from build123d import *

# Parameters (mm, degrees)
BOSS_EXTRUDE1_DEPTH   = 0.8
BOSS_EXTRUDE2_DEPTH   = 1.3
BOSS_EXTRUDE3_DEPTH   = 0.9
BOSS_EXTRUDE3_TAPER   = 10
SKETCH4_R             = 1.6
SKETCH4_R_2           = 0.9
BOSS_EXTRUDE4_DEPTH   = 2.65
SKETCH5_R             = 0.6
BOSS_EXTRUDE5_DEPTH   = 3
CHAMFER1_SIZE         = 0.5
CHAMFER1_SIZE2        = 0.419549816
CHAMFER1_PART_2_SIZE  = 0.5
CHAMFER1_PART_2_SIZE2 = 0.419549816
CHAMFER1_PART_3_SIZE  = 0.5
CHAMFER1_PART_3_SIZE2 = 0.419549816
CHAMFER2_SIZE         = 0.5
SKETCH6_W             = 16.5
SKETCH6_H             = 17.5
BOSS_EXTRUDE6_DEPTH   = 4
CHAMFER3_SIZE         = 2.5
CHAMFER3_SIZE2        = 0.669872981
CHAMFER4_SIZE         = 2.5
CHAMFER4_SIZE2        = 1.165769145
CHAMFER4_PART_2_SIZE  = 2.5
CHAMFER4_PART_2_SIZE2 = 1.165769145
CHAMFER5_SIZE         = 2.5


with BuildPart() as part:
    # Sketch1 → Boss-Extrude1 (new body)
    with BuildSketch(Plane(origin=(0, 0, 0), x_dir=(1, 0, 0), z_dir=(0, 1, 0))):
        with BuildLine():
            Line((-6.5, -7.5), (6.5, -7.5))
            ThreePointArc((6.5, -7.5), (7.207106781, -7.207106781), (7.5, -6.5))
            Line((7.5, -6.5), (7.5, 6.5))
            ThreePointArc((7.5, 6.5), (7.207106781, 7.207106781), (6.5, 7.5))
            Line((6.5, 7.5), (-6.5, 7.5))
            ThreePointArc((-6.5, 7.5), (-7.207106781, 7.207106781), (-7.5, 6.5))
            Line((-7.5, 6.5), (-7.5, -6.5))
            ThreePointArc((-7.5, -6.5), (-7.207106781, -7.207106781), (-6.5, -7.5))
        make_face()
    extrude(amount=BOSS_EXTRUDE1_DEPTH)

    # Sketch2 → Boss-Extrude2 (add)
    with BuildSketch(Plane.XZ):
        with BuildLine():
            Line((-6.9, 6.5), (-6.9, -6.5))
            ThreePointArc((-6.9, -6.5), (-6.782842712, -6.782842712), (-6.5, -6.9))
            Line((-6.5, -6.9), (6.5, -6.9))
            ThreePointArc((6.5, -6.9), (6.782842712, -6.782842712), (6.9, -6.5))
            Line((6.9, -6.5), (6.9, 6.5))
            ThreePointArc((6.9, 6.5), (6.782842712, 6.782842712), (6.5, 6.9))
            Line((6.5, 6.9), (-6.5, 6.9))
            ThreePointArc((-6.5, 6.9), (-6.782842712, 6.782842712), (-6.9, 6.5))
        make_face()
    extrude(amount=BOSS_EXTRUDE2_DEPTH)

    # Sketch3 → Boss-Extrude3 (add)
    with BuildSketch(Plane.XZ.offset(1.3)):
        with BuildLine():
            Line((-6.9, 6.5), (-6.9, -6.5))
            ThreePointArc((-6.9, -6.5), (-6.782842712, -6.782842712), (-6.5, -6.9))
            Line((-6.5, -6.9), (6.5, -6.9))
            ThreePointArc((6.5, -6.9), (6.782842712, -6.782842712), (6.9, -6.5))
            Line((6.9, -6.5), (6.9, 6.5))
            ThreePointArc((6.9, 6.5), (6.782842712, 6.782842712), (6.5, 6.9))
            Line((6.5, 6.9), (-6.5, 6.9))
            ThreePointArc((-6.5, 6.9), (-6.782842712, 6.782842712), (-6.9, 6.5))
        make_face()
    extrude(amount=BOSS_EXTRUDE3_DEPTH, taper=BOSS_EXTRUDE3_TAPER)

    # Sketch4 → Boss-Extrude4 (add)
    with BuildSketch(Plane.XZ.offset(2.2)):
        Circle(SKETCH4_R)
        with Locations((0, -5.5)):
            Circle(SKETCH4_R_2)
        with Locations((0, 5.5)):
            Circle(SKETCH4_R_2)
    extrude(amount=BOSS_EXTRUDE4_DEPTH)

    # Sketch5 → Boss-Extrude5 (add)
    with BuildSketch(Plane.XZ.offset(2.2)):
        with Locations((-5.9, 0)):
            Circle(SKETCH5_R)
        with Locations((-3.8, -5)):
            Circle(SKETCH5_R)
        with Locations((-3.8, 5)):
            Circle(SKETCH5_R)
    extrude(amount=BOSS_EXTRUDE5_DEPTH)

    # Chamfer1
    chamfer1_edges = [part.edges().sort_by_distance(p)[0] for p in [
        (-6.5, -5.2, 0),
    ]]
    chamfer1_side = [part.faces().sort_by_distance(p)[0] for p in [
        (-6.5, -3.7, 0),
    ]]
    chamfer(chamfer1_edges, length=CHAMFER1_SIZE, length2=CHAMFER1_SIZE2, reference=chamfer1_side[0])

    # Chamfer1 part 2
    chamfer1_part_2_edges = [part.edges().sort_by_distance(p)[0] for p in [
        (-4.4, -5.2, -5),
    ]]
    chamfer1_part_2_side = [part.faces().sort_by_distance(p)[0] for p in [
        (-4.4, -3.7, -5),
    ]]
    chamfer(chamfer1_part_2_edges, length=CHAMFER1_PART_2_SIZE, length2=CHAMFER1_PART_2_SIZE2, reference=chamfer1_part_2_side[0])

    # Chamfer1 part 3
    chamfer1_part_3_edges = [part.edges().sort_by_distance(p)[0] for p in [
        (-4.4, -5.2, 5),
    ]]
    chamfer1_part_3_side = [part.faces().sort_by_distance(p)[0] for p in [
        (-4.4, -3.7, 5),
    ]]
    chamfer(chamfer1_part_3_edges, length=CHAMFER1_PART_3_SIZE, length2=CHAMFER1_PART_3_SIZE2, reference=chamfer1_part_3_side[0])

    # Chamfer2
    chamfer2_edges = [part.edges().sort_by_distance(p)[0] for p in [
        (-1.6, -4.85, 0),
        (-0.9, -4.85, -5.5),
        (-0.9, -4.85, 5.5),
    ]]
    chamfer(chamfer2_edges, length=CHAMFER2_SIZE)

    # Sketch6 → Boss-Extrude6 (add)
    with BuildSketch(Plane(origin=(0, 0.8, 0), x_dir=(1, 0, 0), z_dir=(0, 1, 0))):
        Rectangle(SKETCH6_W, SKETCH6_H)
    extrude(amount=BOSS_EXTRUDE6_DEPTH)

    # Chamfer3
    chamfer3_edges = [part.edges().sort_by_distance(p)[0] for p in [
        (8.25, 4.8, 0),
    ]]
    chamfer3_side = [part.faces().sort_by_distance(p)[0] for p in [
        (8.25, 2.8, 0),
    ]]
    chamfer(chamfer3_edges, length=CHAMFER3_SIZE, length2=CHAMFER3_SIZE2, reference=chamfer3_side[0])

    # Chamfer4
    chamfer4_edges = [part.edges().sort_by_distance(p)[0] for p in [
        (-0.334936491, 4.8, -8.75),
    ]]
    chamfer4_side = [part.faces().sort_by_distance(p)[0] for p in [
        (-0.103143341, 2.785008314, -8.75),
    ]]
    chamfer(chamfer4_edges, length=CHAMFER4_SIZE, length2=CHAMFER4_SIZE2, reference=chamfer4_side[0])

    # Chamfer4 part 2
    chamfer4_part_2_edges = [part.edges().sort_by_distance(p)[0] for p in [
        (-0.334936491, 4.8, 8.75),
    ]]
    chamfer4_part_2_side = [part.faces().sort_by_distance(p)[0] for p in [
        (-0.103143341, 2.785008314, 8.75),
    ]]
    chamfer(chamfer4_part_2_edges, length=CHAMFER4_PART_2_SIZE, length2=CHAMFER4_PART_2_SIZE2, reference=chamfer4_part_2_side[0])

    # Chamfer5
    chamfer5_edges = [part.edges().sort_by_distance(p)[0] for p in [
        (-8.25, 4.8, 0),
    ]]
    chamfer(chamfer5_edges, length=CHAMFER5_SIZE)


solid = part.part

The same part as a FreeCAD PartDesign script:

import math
import FreeCAD as App
import Part
import Sketcher

V = App.Vector
Q = App.Units.Quantity


def edges_at(feature, points):
    """Names of the edges that pass closest to the given points."""
    edges = feature.Shape.Edges
    near = lambda p: min(range(len(edges)), key=lambda i: edges[i].distToShape(Part.Vertex(*p))[0])
    return sorted({f"Edge{near(p) + 1}" for p in points})

doc = App.newDocument("Part")
body = doc.addObject("PartDesign::Body", "Body")

sketch1 = doc.addObject("Sketcher::SketchObject", "Sketch")
body.addObject(sketch1)
sketch1.AttachmentSupport = (doc.XZ_Plane, [""])
sketch1.MapMode = "FlatFace"
sketch1.addGeometry([
    Part.LineSegment(V(-6.5, 7.5, 0), V(6.5, 7.5, 0)),
    Part.ArcOfCircle(Part.Circle(V(6.5, 6.5, 0), V(0, 0, 1), 1), math.radians(0), math.radians(90)),
    Part.LineSegment(V(7.5, 6.5, 0), V(7.5, -6.5, 0)),
    Part.ArcOfCircle(Part.Circle(V(6.5, -6.5, 0), V(0, 0, 1), 1), math.radians(-90), math.radians(0)),
    Part.LineSegment(V(6.5, -7.5, 0), V(-6.5, -7.5, 0)),
    Part.ArcOfCircle(Part.Circle(V(-6.5, -6.5, 0), V(0, 0, 1), 1), math.radians(-180), math.radians(-90)),
    Part.LineSegment(V(-7.5, -6.5, 0), V(-7.5, 6.5, 0)),
    Part.ArcOfCircle(Part.Circle(V(-6.5, 6.5, 0), V(0, 0, 1), 1), math.radians(90), math.radians(180)),
], False)
sketch1.addConstraint([
    Sketcher.Constraint("Tangent", 0, 2, 1, 2),
    Sketcher.Constraint("Tangent", 1, 1, 2, 1),
    Sketcher.Constraint("Tangent", 2, 2, 3, 2),
    Sketcher.Constraint("Tangent", 3, 1, 4, 1),
    Sketcher.Constraint("Tangent", 4, 2, 5, 2),
    Sketcher.Constraint("Tangent", 5, 1, 6, 1),
    Sketcher.Constraint("Tangent", 6, 2, 7, 2),
    Sketcher.Constraint("Tangent", 7, 1, 0, 1),
    Sketcher.Constraint("Horizontal", 0),
    Sketcher.Constraint("Vertical", 2),
    Sketcher.Constraint("Horizontal", 4),
    Sketcher.Constraint("Vertical", 6),
    Sketcher.Constraint("Equal", 1, 3),
    Sketcher.Constraint("Equal", 3, 5),
    Sketcher.Constraint("Equal", 5, 7),
    Sketcher.Constraint("Symmetric", 1, 3, 5, 3, -1, 1),
    Sketcher.Constraint("Equal", 4, 2),
    Sketcher.Constraint("Radius", 1, Q("1 mm")),
    Sketcher.Constraint("DistanceX", 0, 1, 0, 2, Q("13 mm")),
])
pad1 = doc.addObject("PartDesign::Pad", "Pad")
body.addObject(pad1)
pad1.Profile = sketch1
pad1.Length = 0.8
pad1.Reversed = True

sketch2 = doc.addObject("Sketcher::SketchObject", "Sketch001")
body.addObject(sketch2)
sketch2.AttachmentSupport = (doc.XZ_Plane, [""])
sketch2.MapMode = "FlatFace"
sketch2.addGeometry([
    Part.LineSegment(V(-6.9, 6.5, 0), V(-6.9, -6.5, 0)),
    Part.ArcOfCircle(Part.Circle(V(-6.5, -6.5, 0), V(0, 0, 1), 0.4), math.radians(-180), math.radians(-90)),
    Part.LineSegment(V(-6.5, -6.9, 0), V(6.5, -6.9, 0)),
    Part.ArcOfCircle(Part.Circle(V(6.5, -6.5, 0), V(0, 0, 1), 0.4), math.radians(-90), math.radians(0)),
    Part.LineSegment(V(6.9, -6.5, 0), V(6.9, 6.5, 0)),
    Part.ArcOfCircle(Part.Circle(V(6.5, 6.5, 0), V(0, 0, 1), 0.4), math.radians(0), math.radians(90)),
    Part.LineSegment(V(6.5, 6.9, 0), V(-6.5, 6.9, 0)),
    Part.ArcOfCircle(Part.Circle(V(-6.5, 6.5, 0), V(0, 0, 1), 0.4), math.radians(90), math.radians(180)),
], False)
sketch2.addConstraint([
    Sketcher.Constraint("Tangent", 0, 2, 1, 1),
    Sketcher.Constraint("Tangent", 1, 2, 2, 1),
    Sketcher.Constraint("Tangent", 2, 2, 3, 1),
    Sketcher.Constraint("Tangent", 3, 2, 4, 1),
    Sketcher.Constraint("Tangent", 4, 2, 5, 1),
    Sketcher.Constraint("Tangent", 5, 2, 6, 1),
    Sketcher.Constraint("Tangent", 6, 2, 7, 1),
    Sketcher.Constraint("Tangent", 7, 2, 0, 1),
    Sketcher.Constraint("Vertical", 0),
    Sketcher.Constraint("Horizontal", 2),
    Sketcher.Constraint("Vertical", 4),
    Sketcher.Constraint("Horizontal", 6),
    Sketcher.Constraint("Equal", 1, 3),
    Sketcher.Constraint("Equal", 3, 5),
    Sketcher.Constraint("Equal", 5, 7),
    Sketcher.Constraint("Symmetric", 1, 3, 5, 3, -1, 1),
    Sketcher.Constraint("Equal", 6, 0),
    Sketcher.Constraint("Radius", 1, Q("0.4 mm")),
    Sketcher.Constraint("DistanceX", 2, 1, 2, 2, Q("13 mm")),
])
pad2 = doc.addObject("PartDesign::Pad", "Pad001")
body.addObject(pad2)
pad2.Profile = sketch2
pad2.Length = 1.3

sketch3 = doc.addObject("Sketcher::SketchObject", "Sketch002")
body.addObject(sketch3)
sketch3.AttachmentSupport = (doc.XZ_Plane, [""])
sketch3.MapMode = "FlatFace"
sketch3.AttachmentOffset = App.Placement(V(0, 0, 1.3), App.Rotation())
sketch3.addGeometry([
    Part.LineSegment(V(-6.9, 6.5, 0), V(-6.9, -6.5, 0)),
    Part.ArcOfCircle(Part.Circle(V(-6.5, -6.5, 0), V(0, 0, 1), 0.4), math.radians(-180), math.radians(-90)),
    Part.LineSegment(V(-6.5, -6.9, 0), V(6.5, -6.9, 0)),
    Part.ArcOfCircle(Part.Circle(V(6.5, -6.5, 0), V(0, 0, 1), 0.4), math.radians(-90), math.radians(0)),
    Part.LineSegment(V(6.9, -6.5, 0), V(6.9, 6.5, 0)),
    Part.ArcOfCircle(Part.Circle(V(6.5, 6.5, 0), V(0, 0, 1), 0.4), math.radians(0), math.radians(90)),
    Part.LineSegment(V(6.5, 6.9, 0), V(-6.5, 6.9, 0)),
    Part.ArcOfCircle(Part.Circle(V(-6.5, 6.5, 0), V(0, 0, 1), 0.4), math.radians(90), math.radians(180)),
], False)
sketch3.addConstraint([
    Sketcher.Constraint("Tangent", 0, 2, 1, 1),
    Sketcher.Constraint("Tangent", 1, 2, 2, 1),
    Sketcher.Constraint("Tangent", 2, 2, 3, 1),
    Sketcher.Constraint("Tangent", 3, 2, 4, 1),
    Sketcher.Constraint("Tangent", 4, 2, 5, 1),
    Sketcher.Constraint("Tangent", 5, 2, 6, 1),
    Sketcher.Constraint("Tangent", 6, 2, 7, 1),
    Sketcher.Constraint("Tangent", 7, 2, 0, 1),
    Sketcher.Constraint("Vertical", 0),
    Sketcher.Constraint("Horizontal", 2),
    Sketcher.Constraint("Vertical", 4),
    Sketcher.Constraint("Horizontal", 6),
    Sketcher.Constraint("Equal", 1, 3),
    Sketcher.Constraint("Equal", 3, 5),
    Sketcher.Constraint("Equal", 5, 7),
    Sketcher.Constraint("Symmetric", 1, 3, 5, 3, -1, 1),
    Sketcher.Constraint("Equal", 6, 0),
    Sketcher.Constraint("Radius", 1, Q("0.4 mm")),
    Sketcher.Constraint("DistanceX", 2, 1, 2, 2, Q("13 mm")),
])
pad3 = doc.addObject("PartDesign::Pad", "Pad002")
body.addObject(pad3)
pad3.Profile = sketch3
pad3.Length = 0.9
pad3.TaperAngle = -10

sketch4 = doc.addObject("Sketcher::SketchObject", "Sketch003")
body.addObject(sketch4)
sketch4.AttachmentSupport = (doc.XZ_Plane, [""])
sketch4.MapMode = "FlatFace"
sketch4.AttachmentOffset = App.Placement(V(0, 0, 2.2), App.Rotation())
sketch4.addGeometry([
    Part.Circle(V(0, 0, 0), V(0, 0, 1), 1.6),
    Part.Circle(V(0, -5.5, 0), V(0, 0, 1), 0.9),
    Part.Circle(V(0, 5.5, 0), V(0, 0, 1), 0.9),
], False)
sketch4.addConstraint([
    Sketcher.Constraint("Coincident", 0, 3, -1, 1),
    Sketcher.Constraint("Equal", 1, 2),
    Sketcher.Constraint("Symmetric", 1, 3, 2, 3, -1, 1),
    Sketcher.Constraint("PointOnObject", 1, 3, -2),
    Sketcher.Constraint("Diameter", 0, Q("3.2 mm")),
    Sketcher.Constraint("Diameter", 1, Q("1.8 mm")),
    Sketcher.Constraint("DistanceY", 1, 3, 2, 3, Q("11 mm")),
])
pad4 = doc.addObject("PartDesign::Pad", "Pad003")
body.addObject(pad4)
pad4.Profile = sketch4
pad4.Length = 2.65

sketch5 = doc.addObject("Sketcher::SketchObject", "Sketch004")
body.addObject(sketch5)
sketch5.AttachmentSupport = (doc.XZ_Plane, [""])
sketch5.MapMode = "FlatFace"
sketch5.AttachmentOffset = App.Placement(V(0, 0, 2.2), App.Rotation())
sketch5.addGeometry([
    Part.Circle(V(-5.9, 0, 0), V(0, 0, 1), 0.6),
    Part.Circle(V(-3.8, -5, 0), V(0, 0, 1), 0.6),
    Part.Circle(V(-3.8, 5, 0), V(0, 0, 1), 0.6),
], False)
sketch5.addConstraint([
    Sketcher.Constraint("Equal", 0, 1),
    Sketcher.Constraint("Equal", 1, 2),
    Sketcher.Constraint("Symmetric", 1, 3, 2, 3, -1),
    Sketcher.Constraint("PointOnObject", 0, 3, -1),
    Sketcher.Constraint("Diameter", 0, Q("1.2 mm")),
    Sketcher.Constraint("DistanceY", 1, 3, -1, 1, Q("5 mm")),
    Sketcher.Constraint("DistanceX", 0, 3, -1, 1, Q("5.9 mm")),
    Sketcher.Constraint("DistanceX", 1, 3, -1, 1, Q("3.8 mm")),
])
pad5 = doc.addObject("PartDesign::Pad", "Pad004")
body.addObject(pad5)
pad5.Profile = sketch5
pad5.Length = 3
doc.recompute()

chamfer = doc.addObject("PartDesign::Chamfer", "Chamfer")
body.addObject(chamfer)
chamfer.Base = (pad5, edges_at(pad5, [(-6.5, -5.2, 0)]))
chamfer.ChamferType = "Two distances"
chamfer.Size = 0.5
chamfer.Size2 = 0.41955
doc.recompute()

chamfer2 = doc.addObject("PartDesign::Chamfer", "Chamfer001")
body.addObject(chamfer2)
chamfer2.Base = (chamfer, edges_at(chamfer, [(-4.4, -5.2, -5)]))
chamfer2.ChamferType = "Two distances"
chamfer2.Size = 0.5
chamfer2.Size2 = 0.41955
doc.recompute()

chamfer3 = doc.addObject("PartDesign::Chamfer", "Chamfer002")
body.addObject(chamfer3)
chamfer3.Base = (chamfer2, edges_at(chamfer2, [(-4.4, -5.2, 5)]))
chamfer3.ChamferType = "Two distances"
chamfer3.Size = 0.5
chamfer3.Size2 = 0.41955
doc.recompute()

chamfer4 = doc.addObject("PartDesign::Chamfer", "Chamfer003")
body.addObject(chamfer4)
chamfer4.Base = (chamfer3, edges_at(chamfer3, [(-1.6, -4.85, 0), (-0.9, -4.85, -5.5), (-0.9, -4.85, 5.5)]))
chamfer4.Size = 0.5

sketch6 = doc.addObject("Sketcher::SketchObject", "Sketch005")
body.addObject(sketch6)
sketch6.AttachmentSupport = (doc.XZ_Plane, [""])
sketch6.MapMode = "FlatFace"
sketch6.AttachmentOffset = App.Placement(V(0, 0, -0.8), App.Rotation())
sketch6.addGeometry([
    Part.LineSegment(V(-8, -9, 0), V(-8, 9, 0)),
    Part.LineSegment(V(-8, 9, 0), V(8, 9, 0)),
    Part.LineSegment(V(8, 9, 0), V(8, -9, 0)),
    Part.LineSegment(V(8, -9, 0), V(-8, -9, 0)),
], False)
sketch6.addConstraint([
    Sketcher.Constraint("Coincident", 0, 2, 1, 1),
    Sketcher.Constraint("Coincident", 1, 2, 2, 1),
    Sketcher.Constraint("Coincident", 2, 2, 3, 1),
    Sketcher.Constraint("Coincident", 3, 2, 0, 1),
    Sketcher.Constraint("Vertical", 0),
    Sketcher.Constraint("Horizontal", 1),
    Sketcher.Constraint("Vertical", 2),
    Sketcher.Constraint("Horizontal", 3),
    Sketcher.Constraint("Symmetric", 0, 2, 2, 2, -1, 1),
    Sketcher.Constraint("DistanceX", 1, 1, 1, 2, Q("16.5 mm")),
    Sketcher.Constraint("DistanceY", 0, 1, 0, 2, Q("17.5 mm")),
])
pad6 = doc.addObject("PartDesign::Pad", "Pad005")
body.addObject(pad6)
pad6.Profile = sketch6
pad6.Length = 4
pad6.Reversed = True
doc.recompute()

chamfer5 = doc.addObject("PartDesign::Chamfer", "Chamfer004")
body.addObject(chamfer5)
chamfer5.Base = (pad6, edges_at(pad6, [(8.25, 4.8, 0)]))
chamfer5.ChamferType = "Two distances"
chamfer5.Size = 2.5
chamfer5.Size2 = 0.669873
doc.recompute()

chamfer6 = doc.addObject("PartDesign::Chamfer", "Chamfer005")
body.addObject(chamfer6)
chamfer6.Base = (chamfer5, edges_at(chamfer5, [(-0.335, 4.8, -8.75)]))
chamfer6.ChamferType = "Two distances"
chamfer6.Size = 2.5
chamfer6.Size2 = 1.165769
doc.recompute()

chamfer7 = doc.addObject("PartDesign::Chamfer", "Chamfer006")
body.addObject(chamfer7)
chamfer7.Base = (chamfer6, edges_at(chamfer6, [(-0.335, 4.8, 8.75)]))
chamfer7.ChamferType = "Two distances"
chamfer7.Size = 2.5
chamfer7.Size2 = 1.165769
chamfer7.FlipDirection = True
doc.recompute()

chamfer8 = doc.addObject("PartDesign::Chamfer", "Chamfer007")
body.addObject(chamfer8)
chamfer8.Base = (chamfer7, edges_at(chamfer7, [(-8.25, 4.8, 0)]))
chamfer8.Size = 2.5

doc.recompute()
